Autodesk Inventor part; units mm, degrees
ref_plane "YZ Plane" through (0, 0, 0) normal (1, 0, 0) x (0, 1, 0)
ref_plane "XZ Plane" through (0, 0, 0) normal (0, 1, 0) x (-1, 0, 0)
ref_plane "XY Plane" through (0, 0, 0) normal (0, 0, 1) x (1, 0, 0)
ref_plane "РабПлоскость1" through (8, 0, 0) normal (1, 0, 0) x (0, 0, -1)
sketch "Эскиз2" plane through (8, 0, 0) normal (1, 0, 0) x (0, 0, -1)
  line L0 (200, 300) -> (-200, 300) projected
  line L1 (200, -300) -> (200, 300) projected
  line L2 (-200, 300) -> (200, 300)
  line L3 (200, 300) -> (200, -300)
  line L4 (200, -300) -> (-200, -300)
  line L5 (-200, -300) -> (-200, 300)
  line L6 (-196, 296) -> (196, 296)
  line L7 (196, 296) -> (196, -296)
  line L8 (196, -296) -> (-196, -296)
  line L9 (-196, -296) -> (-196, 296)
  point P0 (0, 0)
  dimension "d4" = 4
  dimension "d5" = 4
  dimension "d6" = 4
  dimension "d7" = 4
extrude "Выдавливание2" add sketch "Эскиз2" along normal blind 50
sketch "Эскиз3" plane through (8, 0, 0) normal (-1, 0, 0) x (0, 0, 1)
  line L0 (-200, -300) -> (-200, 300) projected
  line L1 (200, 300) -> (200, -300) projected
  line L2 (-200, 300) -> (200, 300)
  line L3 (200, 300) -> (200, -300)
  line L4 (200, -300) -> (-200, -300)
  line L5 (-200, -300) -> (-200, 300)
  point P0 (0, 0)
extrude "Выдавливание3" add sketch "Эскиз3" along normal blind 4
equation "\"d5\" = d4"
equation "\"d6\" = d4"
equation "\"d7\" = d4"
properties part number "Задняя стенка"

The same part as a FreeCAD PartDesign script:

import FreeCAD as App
import Part
import Sketcher
from FreeCAD import Vector

doc = App.newDocument("Part")
params = doc.addObject("Spreadsheet::Sheet", "Params")
for row, (alias, value) in enumerate([
    ("sketch1_width", "600 mm"),
    ("sketch1_height", "400 mm"),
    ("pad1_length", "50 mm"),
    ("sketch2_width", "600 mm"),
    ("sketch2_height", "400 mm"),
    ("pad2_length", "4 mm"),
], start=1):
    params.set(f"A{row}", alias)
    params.set(f"B{row}", "=" + value)
    params.setAlias(f"B{row}", alias)

body = doc.addObject("PartDesign::Body", "Body")

# Sketch on YZ plane
sketch1 = body.newObject("Sketcher::SketchObject", "Sketch")
sketch1.AttachmentSupport = (doc.getObject("YZ_Plane"), [""])
sketch1.MapMode = "FlatFace"
sketch1.AttachmentOffset = App.Placement(Vector(0, 0, 8), App.Rotation())
sketch1.addGeometry(Part.LineSegment(Vector(-300, -200, 0), Vector(300, -200, 0)), False)
sketch1.addGeometry(Part.LineSegment(Vector(300, -200, 0), Vector(300, 200, 0)), False)
sketch1.addGeometry(Part.LineSegment(Vector(300, 200, 0), Vector(-300, 200, 0)), False)
sketch1.addGeometry(Part.LineSegment(Vector(-300, 200, 0), Vector(-300, -200, 0)), False)
sketch1.addGeometry(Part.LineSegment(Vector(-296, 196, 0), Vector(296, 196, 0)), False)
sketch1.addGeometry(Part.LineSegment(Vector(296, 196, 0), Vector(296, -196, 0)), False)
sketch1.addGeometry(Part.LineSegment(Vector(296, -196, 0), Vector(-296, -196, 0)), False)
sketch1.addGeometry(Part.LineSegment(Vector(-296, -196, 0), Vector(-296, 196, 0)), False)
sketch1.addConstraint(Sketcher.Constraint("Coincident", 0, 2, 1, 1))
sketch1.addConstraint(Sketcher.Constraint("Coincident", 1, 2, 2, 1))
sketch1.addConstraint(Sketcher.Constraint("Coincident", 2, 2, 3, 1))
sketch1.addConstraint(Sketcher.Constraint("Coincident", 3, 2, 0, 1))
sketch1.addConstraint(Sketcher.Constraint("Coincident", 4, 2, 5, 1))
sketch1.addConstraint(Sketcher.Constraint("Coincident", 5, 2, 6, 1))
sketch1.addConstraint(Sketcher.Constraint("Coincident", 6, 2, 7, 1))
sketch1.addConstraint(Sketcher.Constraint("Coincident", 7, 2, 4, 1))
sketch1.addConstraint(Sketcher.Constraint("Horizontal", 0))
sketch1.addConstraint(Sketcher.Constraint("Vertical", 1))
sketch1.addConstraint(Sketcher.Constraint("Horizontal", 2))
sketch1.addConstraint(Sketcher.Constraint("Vertical", 3))
sketch1.addConstraint(Sketcher.Constraint("Horizontal", 4))
sketch1.addConstraint(Sketcher.Constraint("Vertical", 5))
sketch1.addConstraint(Sketcher.Constraint("Horizontal", 6))
sketch1.addConstraint(Sketcher.Constraint("Vertical", 7))
sketch1.addConstraint(Sketcher.Constraint("Symmetric", 0, 2, 2, 2, -1, 1))
sketch1.addConstraint(Sketcher.Constraint("Symmetric", 4, 2, 6, 2, -1, 1))
sketch1.addConstraint(Sketcher.Constraint("DistanceX", 4, 2, 1, 2, 4.0))
sketch1.addConstraint(Sketcher.Constraint("DistanceY", 4, 2, 1, 2, 4.0))
sketch1.addConstraint(Sketcher.Constraint("DistanceX", 0, 1, 0, 2, 600.0))
sketch1.addConstraint(Sketcher.Constraint("DistanceY", 1, 1, 1, 2, 400.0))
sketch1.setExpression("Constraints[20]", "Params.sketch1_width")
sketch1.setExpression("Constraints[21]", "Params.sketch1_height")
pad1 = body.newObject("PartDesign::Pad", "Pad")
pad1.Profile = sketch1
pad1.setExpression("Length", "Params.pad1_length")

# Sketch on YZ plane
sketch2 = body.newObject("Sketcher::SketchObject", "Sketch001")
sketch2.AttachmentSupport = (doc.getObject("YZ_Plane"), [""])
sketch2.MapMode = "FlatFace"
sketch2.AttachmentOffset = App.Placement(Vector(0, 0, 8), App.Rotation())
sketch2.addGeometry(Part.LineSegment(Vector(300, -200, 0), Vector(-300, -200, 0)), False)
sketch2.addGeometry(Part.LineSegment(Vector(-300, -200, 0), Vector(-300, 200, 0)), False)
sketch2.addGeometry(Part.LineSegment(Vector(-300, 200, 0), Vector(300, 200, 0)), False)
sketch2.addGeometry(Part.LineSegment(Vector(300, 200, 0), Vector(300, -200, 0)), False)
sketch2.addConstraint(Sketcher.Constraint("Coincident", 0, 2, 1, 1))
sketch2.addConstraint(Sketcher.Constraint("Coincident", 1, 2, 2, 1))
sketch2.addConstraint(Sketcher.Constraint("Coincident", 2, 2, 3, 1))
sketch2.addConstraint(Sketcher.Constraint("Coincident", 3, 2, 0, 1))
sketch2.addConstraint(Sketcher.Constraint("Horizontal", 0))
sketch2.addConstraint(Sketcher.Constraint("Vertical", 1))
sketch2.addConstraint(Sketcher.Constraint("Horizontal", 2))
sketch2.addConstraint(Sketcher.Constraint("Vertical", 3))
sketch2.addConstraint(Sketcher.Constraint("Symmetric", 0, 2, 2, 2, -1, 1))
sketch2.addConstraint(Sketcher.Constraint("DistanceX", 0, 2, 0, 1, 600.0))
sketch2.addConstraint(Sketcher.Constraint("DistanceY", 1, 1, 1, 2, 400.0))
sketch2.setExpression("Constraints[9]", "Params.sketch2_width")
sketch2.setExpression("Constraints[10]", "Params.sketch2_height")
pad2 = body.newObject("PartDesign::Pad", "Pad001")
pad2.Profile = sketch2
pad2.setExpression("Length", "Params.pad2_length")
pad2.Reversed = True

doc.recompute()
